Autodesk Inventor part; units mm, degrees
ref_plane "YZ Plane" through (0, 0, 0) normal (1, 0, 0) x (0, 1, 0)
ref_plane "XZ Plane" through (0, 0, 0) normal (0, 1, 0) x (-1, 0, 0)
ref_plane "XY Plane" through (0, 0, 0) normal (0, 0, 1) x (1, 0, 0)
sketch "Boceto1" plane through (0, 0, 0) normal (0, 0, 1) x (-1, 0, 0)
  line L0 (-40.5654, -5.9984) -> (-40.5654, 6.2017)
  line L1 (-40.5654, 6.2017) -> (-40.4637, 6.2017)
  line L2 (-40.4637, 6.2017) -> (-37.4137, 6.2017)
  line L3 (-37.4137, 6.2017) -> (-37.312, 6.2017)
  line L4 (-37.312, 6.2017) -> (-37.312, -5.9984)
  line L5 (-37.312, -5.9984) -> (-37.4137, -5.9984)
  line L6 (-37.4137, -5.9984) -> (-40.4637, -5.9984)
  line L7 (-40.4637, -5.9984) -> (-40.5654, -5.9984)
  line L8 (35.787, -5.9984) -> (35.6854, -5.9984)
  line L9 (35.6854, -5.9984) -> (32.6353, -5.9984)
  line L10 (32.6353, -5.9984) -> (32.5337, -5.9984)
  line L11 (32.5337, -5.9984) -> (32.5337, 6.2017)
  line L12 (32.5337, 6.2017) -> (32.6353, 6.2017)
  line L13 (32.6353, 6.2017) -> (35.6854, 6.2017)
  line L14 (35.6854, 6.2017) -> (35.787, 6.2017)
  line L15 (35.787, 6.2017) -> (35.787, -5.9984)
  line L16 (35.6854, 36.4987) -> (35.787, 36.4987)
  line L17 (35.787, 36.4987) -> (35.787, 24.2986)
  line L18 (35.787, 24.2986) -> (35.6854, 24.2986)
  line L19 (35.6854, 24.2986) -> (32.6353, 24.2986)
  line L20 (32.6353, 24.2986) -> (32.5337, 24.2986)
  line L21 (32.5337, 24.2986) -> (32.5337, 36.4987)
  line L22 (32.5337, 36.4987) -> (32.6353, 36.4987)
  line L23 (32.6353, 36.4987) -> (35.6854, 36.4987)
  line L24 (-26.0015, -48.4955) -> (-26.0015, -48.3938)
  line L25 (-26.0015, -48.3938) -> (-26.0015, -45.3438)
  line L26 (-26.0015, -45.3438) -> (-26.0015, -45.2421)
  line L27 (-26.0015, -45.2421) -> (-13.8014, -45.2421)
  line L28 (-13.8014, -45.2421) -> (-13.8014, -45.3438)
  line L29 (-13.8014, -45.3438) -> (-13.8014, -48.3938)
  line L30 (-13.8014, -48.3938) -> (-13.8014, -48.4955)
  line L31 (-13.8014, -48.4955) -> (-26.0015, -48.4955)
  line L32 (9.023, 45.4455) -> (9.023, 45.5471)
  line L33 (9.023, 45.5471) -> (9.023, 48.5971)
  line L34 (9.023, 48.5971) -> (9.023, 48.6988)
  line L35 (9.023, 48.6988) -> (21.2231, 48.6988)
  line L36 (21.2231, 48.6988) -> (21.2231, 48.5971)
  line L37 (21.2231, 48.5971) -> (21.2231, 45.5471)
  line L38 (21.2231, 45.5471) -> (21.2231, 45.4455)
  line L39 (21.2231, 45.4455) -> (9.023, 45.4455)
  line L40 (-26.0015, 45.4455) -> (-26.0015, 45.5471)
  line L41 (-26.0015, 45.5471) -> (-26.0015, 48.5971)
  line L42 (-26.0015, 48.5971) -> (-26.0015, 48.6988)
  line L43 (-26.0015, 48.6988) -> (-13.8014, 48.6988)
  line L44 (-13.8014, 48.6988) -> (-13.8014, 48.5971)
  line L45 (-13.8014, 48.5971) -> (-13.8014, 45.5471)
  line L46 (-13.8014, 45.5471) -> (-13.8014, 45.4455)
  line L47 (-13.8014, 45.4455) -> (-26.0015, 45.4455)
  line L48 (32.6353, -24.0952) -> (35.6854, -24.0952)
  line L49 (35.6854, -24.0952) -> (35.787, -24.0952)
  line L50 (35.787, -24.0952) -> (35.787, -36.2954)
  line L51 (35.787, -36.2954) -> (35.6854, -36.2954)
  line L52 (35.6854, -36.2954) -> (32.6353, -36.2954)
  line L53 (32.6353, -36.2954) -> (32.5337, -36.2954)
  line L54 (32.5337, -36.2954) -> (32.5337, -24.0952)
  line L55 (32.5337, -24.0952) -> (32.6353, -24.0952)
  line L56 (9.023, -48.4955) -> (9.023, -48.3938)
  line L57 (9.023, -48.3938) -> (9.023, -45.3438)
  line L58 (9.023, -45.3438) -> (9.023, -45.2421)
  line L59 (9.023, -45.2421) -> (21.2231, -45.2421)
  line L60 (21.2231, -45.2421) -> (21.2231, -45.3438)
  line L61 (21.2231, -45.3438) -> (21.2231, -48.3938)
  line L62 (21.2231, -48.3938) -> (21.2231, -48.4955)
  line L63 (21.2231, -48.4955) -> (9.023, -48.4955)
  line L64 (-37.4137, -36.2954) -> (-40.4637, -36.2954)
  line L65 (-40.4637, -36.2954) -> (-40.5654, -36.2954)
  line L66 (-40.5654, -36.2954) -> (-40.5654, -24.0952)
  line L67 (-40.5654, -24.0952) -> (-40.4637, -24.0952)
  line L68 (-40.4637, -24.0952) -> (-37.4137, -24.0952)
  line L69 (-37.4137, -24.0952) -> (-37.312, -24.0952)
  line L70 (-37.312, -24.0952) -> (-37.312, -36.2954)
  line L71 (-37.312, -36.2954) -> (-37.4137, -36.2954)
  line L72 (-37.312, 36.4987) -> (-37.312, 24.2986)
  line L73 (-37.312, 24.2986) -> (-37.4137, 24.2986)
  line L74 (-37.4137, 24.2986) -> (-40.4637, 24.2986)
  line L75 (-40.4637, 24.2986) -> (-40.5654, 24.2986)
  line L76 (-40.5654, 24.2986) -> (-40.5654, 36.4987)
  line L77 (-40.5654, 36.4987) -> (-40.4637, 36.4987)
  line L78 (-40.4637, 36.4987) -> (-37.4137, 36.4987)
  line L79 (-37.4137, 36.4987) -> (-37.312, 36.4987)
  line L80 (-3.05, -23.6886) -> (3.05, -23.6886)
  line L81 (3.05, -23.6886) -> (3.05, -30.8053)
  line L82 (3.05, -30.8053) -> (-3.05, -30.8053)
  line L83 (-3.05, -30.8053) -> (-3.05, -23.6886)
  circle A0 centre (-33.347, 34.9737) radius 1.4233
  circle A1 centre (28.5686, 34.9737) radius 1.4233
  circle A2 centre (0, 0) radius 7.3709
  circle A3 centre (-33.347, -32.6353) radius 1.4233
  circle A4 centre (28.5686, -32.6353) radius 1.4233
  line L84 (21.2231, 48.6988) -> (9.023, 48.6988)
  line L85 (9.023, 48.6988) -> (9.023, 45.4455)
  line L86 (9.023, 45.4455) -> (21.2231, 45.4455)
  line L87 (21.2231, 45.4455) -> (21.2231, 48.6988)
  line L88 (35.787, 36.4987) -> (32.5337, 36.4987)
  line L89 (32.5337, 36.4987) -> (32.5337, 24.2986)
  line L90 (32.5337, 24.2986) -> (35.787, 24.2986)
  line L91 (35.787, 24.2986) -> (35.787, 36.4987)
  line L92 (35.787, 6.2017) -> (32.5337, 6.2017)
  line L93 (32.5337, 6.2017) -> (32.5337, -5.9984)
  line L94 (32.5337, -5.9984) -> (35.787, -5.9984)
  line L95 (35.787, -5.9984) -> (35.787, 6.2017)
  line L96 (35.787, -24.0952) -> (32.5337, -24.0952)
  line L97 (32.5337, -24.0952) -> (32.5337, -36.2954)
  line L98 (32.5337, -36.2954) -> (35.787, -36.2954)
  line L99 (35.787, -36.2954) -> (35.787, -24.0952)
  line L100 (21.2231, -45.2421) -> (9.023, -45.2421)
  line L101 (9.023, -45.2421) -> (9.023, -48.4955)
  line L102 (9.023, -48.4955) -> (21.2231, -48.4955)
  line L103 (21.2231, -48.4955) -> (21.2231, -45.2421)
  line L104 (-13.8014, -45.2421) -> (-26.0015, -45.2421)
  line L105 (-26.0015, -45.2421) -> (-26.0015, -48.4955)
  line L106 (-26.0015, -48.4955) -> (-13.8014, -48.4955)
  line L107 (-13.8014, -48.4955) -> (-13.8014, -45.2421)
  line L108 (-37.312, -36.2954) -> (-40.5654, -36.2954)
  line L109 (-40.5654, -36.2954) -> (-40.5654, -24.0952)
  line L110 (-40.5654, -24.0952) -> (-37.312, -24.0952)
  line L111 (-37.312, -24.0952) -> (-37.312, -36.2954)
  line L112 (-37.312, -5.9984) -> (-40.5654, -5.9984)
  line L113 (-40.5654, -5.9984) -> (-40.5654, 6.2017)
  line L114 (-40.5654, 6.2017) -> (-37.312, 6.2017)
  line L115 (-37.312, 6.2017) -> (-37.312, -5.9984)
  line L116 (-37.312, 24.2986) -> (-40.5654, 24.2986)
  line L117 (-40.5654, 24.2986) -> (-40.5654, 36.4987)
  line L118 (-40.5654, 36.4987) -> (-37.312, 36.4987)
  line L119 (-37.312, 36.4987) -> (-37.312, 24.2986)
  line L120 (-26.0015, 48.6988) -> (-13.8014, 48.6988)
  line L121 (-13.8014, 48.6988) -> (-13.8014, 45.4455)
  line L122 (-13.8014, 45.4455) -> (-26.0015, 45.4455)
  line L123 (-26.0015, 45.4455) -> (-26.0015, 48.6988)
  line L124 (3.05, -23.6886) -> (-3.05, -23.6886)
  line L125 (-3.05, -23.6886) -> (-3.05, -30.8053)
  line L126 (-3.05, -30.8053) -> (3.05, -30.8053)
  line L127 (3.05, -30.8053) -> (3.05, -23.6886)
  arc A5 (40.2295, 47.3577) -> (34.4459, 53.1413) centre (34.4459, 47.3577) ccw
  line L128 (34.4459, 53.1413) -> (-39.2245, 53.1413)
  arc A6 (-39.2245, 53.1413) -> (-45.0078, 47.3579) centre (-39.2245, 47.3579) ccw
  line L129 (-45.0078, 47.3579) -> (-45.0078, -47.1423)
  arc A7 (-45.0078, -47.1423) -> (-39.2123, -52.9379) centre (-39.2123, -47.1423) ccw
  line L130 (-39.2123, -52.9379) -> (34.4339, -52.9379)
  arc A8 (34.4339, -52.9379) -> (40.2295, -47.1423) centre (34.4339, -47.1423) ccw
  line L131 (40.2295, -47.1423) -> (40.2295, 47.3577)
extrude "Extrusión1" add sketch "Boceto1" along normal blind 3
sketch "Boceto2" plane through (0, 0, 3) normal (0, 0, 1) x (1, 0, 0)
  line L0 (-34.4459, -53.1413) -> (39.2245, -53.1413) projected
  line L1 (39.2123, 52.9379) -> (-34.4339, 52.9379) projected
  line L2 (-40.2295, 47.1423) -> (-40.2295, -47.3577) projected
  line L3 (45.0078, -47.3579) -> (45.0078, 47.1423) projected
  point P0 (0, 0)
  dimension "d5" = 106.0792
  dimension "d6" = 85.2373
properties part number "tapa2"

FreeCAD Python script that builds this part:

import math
import FreeCAD as App
import Part
import Sketcher
from FreeCAD import Vector

doc = App.newDocument("Part")
body = doc.addObject("PartDesign::Body", "Body")

sketch1 = body.newObject("Sketcher::SketchObject", "Sketch")
sketch1.AttachmentSupport = (doc.getObject("XY_Plane"), [""])
sketch1.MapMode = "FlatFace"
sketch1.addGeometry(Part.LineSegment(Vector(-40.2, 47.1, 0), Vector(-40.2, -47.4, 0)), False)
sketch1.addGeometry(Part.ArcOfCircle(Part.Circle(Vector(-34.4, -47.4, 0), Vector(0, 0, 1), 5.8), math.radians(180), math.radians(270)), False)
sketch1.addGeometry(Part.LineSegment(Vector(-34.4, -53.1, 0), Vector(39.2, -53.1, 0)), False)
sketch1.addGeometry(Part.ArcOfCircle(Part.Circle(Vector(39.2, -47.4, 0), Vector(0, 0, 1), 5.8), math.radians(-90), math.radians(0)), False)
sketch1.addGeometry(Part.LineSegment(Vector(45, -47.4, 0), Vector(45, 47.1, 0)), False)
sketch1.addGeometry(Part.ArcOfCircle(Part.Circle(Vector(39.2, 47.1, 0), Vector(0, 0, 1), 5.8), math.radians(0), math.radians(90)), False)
sketch1.addGeometry(Part.LineSegment(Vector(39.2, 52.9, 0), Vector(-34.4, 52.9, 0)), False)
sketch1.addGeometry(Part.ArcOfCircle(Part.Circle(Vector(-34.4, 47.1, 0), Vector(0, 0, 1), 5.8), math.radians(90), math.radians(180)), False)
sketch1.addGeometry(Part.LineSegment(Vector(37.3, 36.3, 0), Vector(40.6, 36.3, 0)), False)
sketch1.addGeometry(Part.LineSegment(Vector(40.6, 36.3, 0), Vector(40.6, 24.1, 0)), False)
sketch1.addGeometry(Part.LineSegment(Vector(40.6, 24.1, 0), Vector(37.3, 24.1, 0)), False)
sketch1.addGeometry(Part.LineSegment(Vector(37.3, 24.1, 0), Vector(37.3, 36.3, 0)), False)
sketch1.addGeometry(Part.Circle(Vector(33.3, 32.6, 0), Vector(0, 0, 1), 1.4), False)
sketch1.addGeometry(Part.LineSegment(Vector(13.8, 48.5, 0), Vector(26, 48.5, 0)), False)
sketch1.addGeometry(Part.LineSegment(Vector(26, 48.5, 0), Vector(26, 45.2, 0)), False)
sketch1.addGeometry(Part.LineSegment(Vector(26, 45.2, 0), Vector(13.8, 45.2, 0)), False)
sketch1.addGeometry(Part.LineSegment(Vector(13.8, 45.2, 0), Vector(13.8, 48.5, 0)), False)
sketch1.addGeometry(Part.LineSegment(Vector(37.3, 6, 0), Vector(40.6, 6, 0)), False)
sketch1.addGeometry(Part.LineSegment(Vector(40.6, 6, 0), Vector(40.6, -6.2, 0)), False)
sketch1.addGeometry(Part.LineSegment(Vector(40.6, -6.2, 0), Vector(37.3, -6.2, 0)), False)
sketch1.addGeometry(Part.LineSegment(Vector(37.3, -6.2, 0), Vector(37.3, 6, 0)), False)
sketch1.addGeometry(Part.LineSegment(Vector(-21.2, 48.5, 0), Vector(-9, 48.5, 0)), False)
sketch1.addGeometry(Part.LineSegment(Vector(-9, 48.5, 0), Vector(-9, 45.2, 0)), False)
sketch1.addGeometry(Part.LineSegment(Vector(-9, 45.2, 0), Vector(-21.2, 45.2, 0)), False)
sketch1.addGeometry(Part.LineSegment(Vector(-21.2, 45.2, 0), Vector(-21.2, 48.5, 0)), False)
sketch1.addGeometry(Part.LineSegment(Vector(3, 30.8, 0), Vector(3, 23.7, 0)), False)
sketch1.addGeometry(Part.LineSegment(Vector(3, 23.7, 0), Vector(-3, 23.7, 0)), False)
sketch1.addGeometry(Part.LineSegment(Vector(-3, 23.7, 0), Vector(-3, 30.8, 0)), False)
sketch1.addGeometry(Part.LineSegment(Vector(-3, 30.8, 0), Vector(3, 30.8, 0)), False)
sketch1.addGeometry(Part.Circle(Vector(-28.6, 32.6, 0), Vector(0, 0, 1), 1.4), False)
sketch1.addGeometry(Part.LineSegment(Vector(-32.5, 24.1, 0), Vector(-35.8, 24.1, 0)), False)
sketch1.addGeometry(Part.LineSegment(Vector(-35.8, 24.1, 0), Vector(-35.8, 36.3, 0)), False)
sketch1.addGeometry(Part.LineSegment(Vector(-35.8, 36.3, 0), Vector(-32.5, 36.3, 0)), False)
sketch1.addGeometry(Part.LineSegment(Vector(-32.5, 36.3, 0), Vector(-32.5, 24.1, 0)), False)
sketch1.addGeometry(Part.Circle(Vector(0, 0, 0), Vector(0, 0, 1), 7.4), False)
sketch1.addGeometry(Part.LineSegment(Vector(-35.8, -6.2, 0), Vector(-35.8, 6, 0)), False)
sketch1.addGeometry(Part.LineSegment(Vector(-35.8, 6, 0), Vector(-32.5, 6, 0)), False)
sketch1.addGeometry(Part.LineSegment(Vector(-32.5, 6, 0), Vector(-32.5, -6.2, 0)), False)
sketch1.addGeometry(Part.LineSegment(Vector(-32.5, -6.2, 0), Vector(-35.8, -6.2, 0)), False)
sketch1.addGeometry(Part.LineSegment(Vector(40.6, -36.5, 0), Vector(37.3, -36.5, 0)), False)
sketch1.addGeometry(Part.LineSegment(Vector(37.3, -36.5, 0), Vector(37.3, -24.3, 0)), False)
sketch1.addGeometry(Part.LineSegment(Vector(37.3, -24.3, 0), Vector(40.6, -24.3, 0)), False)
sketch1.addGeometry(Part.LineSegment(Vector(40.6, -24.3, 0), Vector(40.6, -36.5, 0)), False)
sketch1.addGeometry(Part.Circle(Vector(33.3, -35, 0), Vector(0, 0, 1), 1.4), False)
sketch1.addGeometry(Part.LineSegment(Vector(13.8, -45.4, 0), Vector(26, -45.4, 0)), False)
sketch1.addGeometry(Part.LineSegment(Vector(26, -45.4, 0), Vector(26, -48.7, 0)), False)
sketch1.addGeometry(Part.LineSegment(Vector(26, -48.7, 0), Vector(13.8, -48.7, 0)), False)
sketch1.addGeometry(Part.LineSegment(Vector(13.8, -48.7, 0), Vector(13.8, -45.4, 0)), False)
sketch1.addGeometry(Part.LineSegment(Vector(-21.2, -45.4, 0), Vector(-9, -45.4, 0)), False)
sketch1.addGeometry(Part.LineSegment(Vector(-9, -45.4, 0), Vector(-9, -48.7, 0)), False)
sketch1.addGeometry(Part.LineSegment(Vector(-9, -48.7, 0), Vector(-21.2, -48.7, 0)), False)
sketch1.addGeometry(Part.LineSegment(Vector(-21.2, -48.7, 0), Vector(-21.2, -45.4, 0)), False)
sketch1.addGeometry(Part.Circle(Vector(-28.6, -35, 0), Vector(0, 0, 1), 1.4), False)
sketch1.addGeometry(Part.LineSegment(Vector(-32.5, -36.5, 0), Vector(-35.8, -36.5, 0)), False)
sketch1.addGeometry(Part.LineSegment(Vector(-35.8, -36.5, 0), Vector(-35.8, -24.3, 0)), False)
sketch1.addGeometry(Part.LineSegment(Vector(-35.8, -24.3, 0), Vector(-32.5, -24.3, 0)), False)
sketch1.addGeometry(Part.LineSegment(Vector(-32.5, -24.3, 0), Vector(-32.5, -36.5, 0)), False)
sketch1.addConstraint(Sketcher.Constraint("Tangent", 0, 2, 1, 1))
sketch1.addConstraint(Sketcher.Constraint("Tangent", 1, 2, 2, 1))
sketch1.addConstraint(Sketcher.Constraint("Tangent", 2, 2, 3, 1))
sketch1.addConstraint(Sketcher.Constraint("Tangent", 3, 2, 4, 1))
sketch1.addConstraint(Sketcher.Constraint("Tangent", 4, 2, 5, 1))
sketch1.addConstraint(Sketcher.Constraint("Tangent", 5, 2, 6, 1))
sketch1.addConstraint(Sketcher.Constraint("Tangent", 6, 2, 7, 1))
sketch1.addConstraint(Sketcher.Constraint("Tangent", 7, 2, 0, 1))
sketch1.addConstraint(Sketcher.Constraint("Coincident", 8, 2, 9, 1))
sketch1.addConstraint(Sketcher.Constraint("Coincident", 9, 2, 10, 1))
sketch1.addConstraint(Sketcher.Constraint("Coincident", 10, 2, 11, 1))
sketch1.addConstraint(Sketcher.Constraint("Coincident", 11, 2, 8, 1))
sketch1.addConstraint(Sketcher.Constraint("Coincident", 13, 2, 14, 1))
sketch1.addConstraint(Sketcher.Constraint("Coincident", 14, 2, 15, 1))
sketch1.addConstraint(Sketcher.Constraint("Coincident", 15, 2, 16, 1))
sketch1.addConstraint(Sketcher.Constraint("Coincident", 16, 2, 13, 1))
sketch1.addConstraint(Sketcher.Constraint("Coincident", 17, 2, 18, 1))
sketch1.addConstraint(Sketcher.Constraint("Coincident", 18, 2, 19, 1))
sketch1.addConstraint(Sketcher.Constraint("Coincident", 19, 2, 20, 1))
sketch1.addConstraint(Sketcher.Constraint("Coincident", 20, 2, 17, 1))
sketch1.addConstraint(Sketcher.Constraint("Coincident", 21, 2, 22, 1))
sketch1.addConstraint(Sketcher.Constraint("Coincident", 22, 2, 23, 1))
sketch1.addConstraint(Sketcher.Constraint("Coincident", 23, 2, 24, 1))
sketch1.addConstraint(Sketcher.Constraint("Coincident", 24, 2, 21, 1))
sketch1.addConstraint(Sketcher.Constraint("Coincident", 25, 2, 26, 1))
sketch1.addConstraint(Sketcher.Constraint("Coincident", 26, 2, 27, 1))
sketch1.addConstraint(Sketcher.Constraint("Coincident", 27, 2, 28, 1))
sketch1.addConstraint(Sketcher.Constraint("Coincident", 28, 2, 25, 1))
sketch1.addConstraint(Sketcher.Constraint("Coincident", 30, 2, 31, 1))
sketch1.addConstraint(Sketcher.Constraint("Coincident", 31, 2, 32, 1))
sketch1.addConstraint(Sketcher.Constraint("Coincident", 32, 2, 33, 1))
sketch1.addConstraint(Sketcher.Constraint("Coincident", 33, 2, 30, 1))
sketch1.addConstraint(Sketcher.Constraint("Coincident", 35, 2, 36, 1))
sketch1.addConstraint(Sketcher.Constraint("Coincident", 36, 2, 37, 1))
sketch1.addConstraint(Sketcher.Constraint("Coincident", 37, 2, 38, 1))
sketch1.addConstraint(Sketcher.Constraint("Coincident", 38, 2, 35, 1))
sketch1.addConstraint(Sketcher.Constraint("Coincident", 39, 2, 40, 1))
sketch1.addConstraint(Sketcher.Constraint("Coincident", 40, 2, 41, 1))
sketch1.addConstraint(Sketcher.Constraint("Coincident", 41, 2, 42, 1))
sketch1.addConstraint(Sketcher.Constraint("Coincident", 42, 2, 39, 1))
sketch1.addConstraint(Sketcher.Constraint("Coincident", 44, 2, 45, 1))
sketch1.addConstraint(Sketcher.Constraint("Coincident", 45, 2, 46, 1))
sketch1.addConstraint(Sketcher.Constraint("Coincident", 46, 2, 47, 1))
sketch1.addConstraint(Sketcher.Constraint("Coincident", 47, 2, 44, 1))
sketch1.addConstraint(Sketcher.Constraint("Coincident", 48, 2, 49, 1))
sketch1.addConstraint(Sketcher.Constraint("Coincident", 49, 2, 50, 1))
sketch1.addConstraint(Sketcher.Constraint("Coincident", 50, 2, 51, 1))
sketch1.addConstraint(Sketcher.Constraint("Coincident", 51, 2, 48, 1))
sketch1.addConstraint(Sketcher.Constraint("Coincident", 53, 2, 54, 1))
sketch1.addConstraint(Sketcher.Constraint("Coincident", 54, 2, 55, 1))
sketch1.addConstraint(Sketcher.Constraint("Coincident", 55, 2, 56, 1))
sketch1.addConstraint(Sketcher.Constraint("Coincident", 56, 2, 53, 1))
sketch1.addConstraint(Sketcher.Constraint("Vertical", 0))
sketch1.addConstraint(Sketcher.Constraint("Horizontal", 2))
sketch1.addConstraint(Sketcher.Constraint("Vertical", 4))
sketch1.addConstraint(Sketcher.Constraint("Horizontal", 6))
sketch1.addConstraint(Sketcher.Constraint("Horizontal", 8))
sketch1.addConstraint(Sketcher.Constraint("Vertical", 9))
sketch1.addConstraint(Sketcher.Constraint("Horizontal", 10))
sketch1.addConstraint(Sketcher.Constraint("Vertical", 11))
sketch1.addConstraint(Sketcher.Constraint("Horizontal", 13))
sketch1.addConstraint(Sketcher.Constraint("Vertical", 14))
sketch1.addConstraint(Sketcher.Constraint("Horizontal", 15))
sketch1.addConstraint(Sketcher.Constraint("Vertical", 16))
sketch1.addConstraint(Sketcher.Constraint("Horizontal", 17))
sketch1.addConstraint(Sketcher.Constraint("Vertical", 18))
sketch1.addConstraint(Sketcher.Constraint("Horizontal", 19))
sketch1.addConstraint(Sketcher.Constraint("Vertical", 20))
sketch1.addConstraint(Sketcher.Constraint("Horizontal", 21))
sketch1.addConstraint(Sketcher.Constraint("Vertical", 22))
sketch1.addConstraint(Sketcher.Constraint("Horizontal", 23))
sketch1.addConstraint(Sketcher.Constraint("Vertical", 24))
sketch1.addConstraint(Sketcher.Constraint("Vertical", 25))
sketch1.addConstraint(Sketcher.Constraint("Horizontal", 26))
sketch1.addConstraint(Sketcher.Constraint("Vertical", 27))
sketch1.addConstraint(Sketcher.Constraint("Horizontal", 28))
sketch1.addConstraint(Sketcher.Constraint("Horizontal", 30))
sketch1.addConstraint(Sketcher.Constraint("Vertical", 31))
sketch1.addConstraint(Sketcher.Constraint("Horizontal", 32))
sketch1.addConstraint(Sketcher.Constraint("Vertical", 33))
sketch1.addConstraint(Sketcher.Constraint("Vertical", 35))
sketch1.addConstraint(Sketcher.Constraint("Horizontal", 36))
sketch1.addConstraint(Sketcher.Constraint("Vertical", 37))
sketch1.addConstraint(Sketcher.Constraint("Horizontal", 38))
sketch1.addConstraint(Sketcher.Constraint("Horizontal", 39))
sketch1.addConstraint(Sketcher.Constraint("Vertical", 40))
sketch1.addConstraint(Sketcher.Constraint("Horizontal", 41))
sketch1.addConstraint(Sketcher.Constraint("Vertical", 42))
sketch1.addConstraint(Sketcher.Constraint("Horizontal", 44))
sketch1.addConstraint(Sketcher.Constraint("Vertical", 45))
sketch1.addConstraint(Sketcher.Constraint("Horizontal", 46))
sketch1.addConstraint(Sketcher.Constraint("Vertical", 47))
sketch1.addConstraint(Sketcher.Constraint("Horizontal", 48))
sketch1.addConstraint(Sketcher.Constraint("Vertical", 49))
sketch1.addConstraint(Sketcher.Constraint("Horizontal", 50))
sketch1.addConstraint(Sketcher.Constraint("Vertical", 51))
sketch1.addConstraint(Sketcher.Constraint("Horizontal", 53))
sketch1.addConstraint(Sketcher.Constraint("Vertical", 54))
sketch1.addConstraint(Sketcher.Constraint("Horizontal", 55))
sketch1.addConstraint(Sketcher.Constraint("Vertical", 56))
sketch1.addConstraint(Sketcher.Constraint("Coincident", 34, 3, -1, 1))
sketch1.addConstraint(Sketcher.Constraint("Equal", 1, 3))
sketch1.addConstraint(Sketcher.Constraint("Equal", 5, 7))
sketch1.addConstraint(Sketcher.Constraint("Equal", 12, 29))
sketch1.addConstraint(Sketcher.Constraint("Equal", 29, 43))
sketch1.addConstraint(Sketcher.Constraint("Equal", 43, 52))
sketch1.addConstraint(Sketcher.Constraint("Horizontal", 12, 3, 29, 3))
sketch1.addConstraint(Sketcher.Constraint("Horizontal", 43, 3, 52, 3))
sketch1.addConstraint(Sketcher.Constraint("Horizontal", 16, 2, 21, 2))
sketch1.addConstraint(Sketcher.Constraint("Horizontal", 15, 2, 22, 2))
sketch1.addConstraint(Sketcher.Constraint("Horizontal", 10, 2, 30, 2))
sketch1.addConstraint(Sketcher.Constraint("Horizontal", 11, 2, 31, 2))
sketch1.addConstraint(Sketcher.Constraint("Horizontal", 20, 2, 35, 2))
sketch1.addConstraint(Sketcher.Constraint("Horizontal", 19, 2, 37, 2))
sketch1.addConstraint(Sketcher.Constraint("Horizontal", 47, 2, 48, 2))
sketch1.addConstraint(Sketcher.Constraint("Horizontal", 46, 2, 49, 2))
sketch1.addConstraint(Sketcher.Constraint("Horizontal", 42, 2, 53, 2))
sketch1.addConstraint(Sketcher.Constraint("Horizontal", 41, 2, 54, 2))
sketch1.addConstraint(Sketcher.Constraint("Vertical", 12, 3, 43, 3))
sketch1.addConstraint(Sketcher.Constraint("Vertical", 29, 3, 52, 3))
sketch1.addConstraint(Sketcher.Constraint("Vertical", 9, 2, 17, 2))
sketch1.addConstraint(Sketcher.Constraint("Vertical", 11, 2, 19, 2))
sketch1.addConstraint(Sketcher.Constraint("Vertical", 31, 2, 35, 2))
sketch1.addConstraint(Sketcher.Constraint("Vertical", 33, 2, 36, 2))
sketch1.addConstraint(Sketcher.Constraint("Vertical", 20, 2, 39, 2))
sketch1.addConstraint(Sketcher.Constraint("Vertical", 18, 2, 41, 2))
sketch1.addConstraint(Sketcher.Constraint("Vertical", 14, 2, 44, 2))
sketch1.addConstraint(Sketcher.Constraint("Vertical", 16, 2, 46, 2))
sketch1.addConstraint(Sketcher.Constraint("Vertical", 22, 2, 48, 2))
sketch1.addConstraint(Sketcher.Constraint("Vertical", 24, 2, 50, 2))
sketch1.addConstraint(Sketcher.Constraint("Vertical", 38, 2, 53, 2))
sketch1.addConstraint(Sketcher.Constraint("Vertical", 37, 2, 55, 2))
sketch1.addConstraint(Sketcher.Constraint("Equal", 15, 21))
sketch1.addConstraint(Sketcher.Constraint("Equal", 19, 30))
sketch1.addConstraint(Sketcher.Constraint("Equal", 50, 9))
sketch1.addConstraint(Sketcher.Constraint("Equal", 55, 14))
sketch1.addConstraint(Sketcher.Constraint("Equal", 11, 18))
sketch1.addConstraint(Sketcher.Constraint("Equal", 37, 40))
sketch1.addConstraint(Sketcher.Constraint("Equal", 24, 45))
sketch1.addConstraint(Sketcher.Constraint("DistanceX", 13, 1, 13, 2, 12.2))
sketch1.addConstraint(Sketcher.Constraint("DistanceX", 26, 2, 26, 1, 6.1))
sketch1.addConstraint(Sketcher.Constraint("DistanceY", 0, 2, 0, 1, 94.5))
sketch1.addConstraint(Sketcher.Constraint("Diameter", 12, 2.8466))
sketch1.addConstraint(Sketcher.Constraint("Diameter", 34, 14.7418))
sketch1.addConstraint(Sketcher.Constraint("Radius", 1, 5.7836))
sketch1.addConstraint(Sketcher.Constraint("Radius", 5, 5.7955))
sketch1.addConstraint(Sketcher.Constraint("DistanceX", -1, 1, 25, 2, 3.05))
sketch1.addConstraint(Sketcher.Constraint("DistanceX", 2, 1, 2, 2, 73.6704))
sketch1.addConstraint(Sketcher.Constraint("DistanceX", 8, 1, 8, 2, 3.2534))
sketch1.addConstraint(Sketcher.Constraint("DistanceY", 25, 2, 25, 1, 7.1167))
sketch1.addConstraint(Sketcher.Constraint("DistanceX", 1, 3, -1, 1, 34.446))
sketch1.addConstraint(Sketcher.Constraint("DistanceY", 3, 3, -1, 1, 47.358))
sketch1.addConstraint(Sketcher.Constraint("DistanceX", -1, 1, 12, 3, 33.347))
sketch1.addConstraint(Sketcher.Constraint("DistanceX", -1, 1, 10, 2, 37.312))
sketch1.addConstraint(Sketcher.Constraint("DistanceY", -1, 1, 14, 2, 45.242))
sketch1.addConstraint(Sketcher.Constraint("DistanceX", 21, 2, -1, 1, 9.023))
sketch1.addConstraint(Sketcher.Constraint("DistanceX", 30, 2, -1, 1, 35.787))
sketch1.addConstraint(Sketcher.Constraint("DistanceY", -1, 1, 12, 3, 32.6353))
sketch1.addConstraint(Sketcher.Constraint("DistanceX", 29, 3, -1, 1, 28.5686))
sketch1.addConstraint(Sketcher.Constraint("DistanceY", 43, 3, -1, 1, 34.9737))
sketch1.addConstraint(Sketcher.Constraint("DistanceY", -1, 1, 8, 2, 36.2954))
sketch1.addConstraint(Sketcher.Constraint("DistanceX", -1, 1, 13, 2, 26.0015))
sketch1.addConstraint(Sketcher.Constraint("DistanceY", -1, 1, 17, 2, 5.9984))
sketch1.addConstraint(Sketcher.Constraint("DistanceY", -1, 1, 25, 2, 23.6886))
sketch1.addConstraint(Sketcher.Constraint("DistanceY", 39, 2, -1, 1, 36.4987))
sketch1.addConstraint(Sketcher.Constraint("DistanceY", 44, 2, -1, 1, 45.4455))
pad1 = body.newObject("PartDesign::Pad", "Pad")
pad1.Profile = sketch1
pad1.Length = 3

doc.recompute()
